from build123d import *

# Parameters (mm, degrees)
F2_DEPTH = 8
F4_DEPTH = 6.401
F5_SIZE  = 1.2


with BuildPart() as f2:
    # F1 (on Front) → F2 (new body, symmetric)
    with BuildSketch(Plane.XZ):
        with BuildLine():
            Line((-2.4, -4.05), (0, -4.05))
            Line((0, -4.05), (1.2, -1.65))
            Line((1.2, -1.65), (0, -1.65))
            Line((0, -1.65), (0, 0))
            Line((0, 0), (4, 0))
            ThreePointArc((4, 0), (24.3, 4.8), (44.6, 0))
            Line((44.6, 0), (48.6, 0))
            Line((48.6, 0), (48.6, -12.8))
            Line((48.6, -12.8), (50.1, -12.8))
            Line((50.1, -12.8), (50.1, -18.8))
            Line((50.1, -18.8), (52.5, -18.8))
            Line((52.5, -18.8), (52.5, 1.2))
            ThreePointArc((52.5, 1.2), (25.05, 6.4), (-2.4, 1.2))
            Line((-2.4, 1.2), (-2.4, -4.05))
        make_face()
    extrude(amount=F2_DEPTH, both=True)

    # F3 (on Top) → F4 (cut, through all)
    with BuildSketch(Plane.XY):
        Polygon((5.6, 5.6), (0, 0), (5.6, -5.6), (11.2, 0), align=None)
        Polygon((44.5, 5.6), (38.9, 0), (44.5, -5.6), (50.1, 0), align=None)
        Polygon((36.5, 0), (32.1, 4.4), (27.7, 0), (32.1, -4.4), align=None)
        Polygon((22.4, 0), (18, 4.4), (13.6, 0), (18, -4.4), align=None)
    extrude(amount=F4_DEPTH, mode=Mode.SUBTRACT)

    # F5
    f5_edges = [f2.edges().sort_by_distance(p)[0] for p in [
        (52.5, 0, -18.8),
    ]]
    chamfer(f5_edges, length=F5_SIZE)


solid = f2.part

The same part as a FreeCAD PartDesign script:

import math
import FreeCAD as App
import Part
import Sketcher
Q = App.Units.Quantity


def edges_at(feature, points):
    """Names of the edges that pass closest to the given points."""
    edges = feature.Shape.Edges
    near = lambda p: min(range(len(edges)), key=lambda i: edges[i].distToShape(Part.Vertex(*p))[0])
    return sorted({f"Edge{near(p) + 1}" for p in points})

doc = App.newDocument("Part")
params = doc.addObject("Spreadsheet::Sheet", "Params")
for row, (alias, value) in enumerate([
    ("sketch1_width", "4 mm"),
    ("sketch1_height", "6 mm"),
    ("sketch1_height2", "20 mm"),
    ("sketch1_width2", "2.4 mm"),
    ("sketch1_width3", "1.2 mm"),
    ("pad1_length", "16 mm"),
    ("chamfer_size", "1.2 mm"),
], start=1):
    params.set(f"A{row}", alias)
    params.set(f"B{row}", "=" + value)
    params.setAlias(f"B{row}", alias)

body = doc.addObject("PartDesign::Body", "Body")

# Sketch on XZ plane
sketch1 = body.newObject("Sketcher::SketchObject", "Sketch")
sketch1.AttachmentSupport = (doc.getObject("XZ_Plane"), [""])
sketch1.MapMode = "FlatFace"
sketch1.addGeometry([
    Part.LineSegment(App.Vector(-2.4, -4, 0), App.Vector(0, -4, 0)),  # 0
    Part.LineSegment(App.Vector(0, -4, 0), App.Vector(1.2, -1.6, 0)),  # 1
    Part.LineSegment(App.Vector(1.2, -1.6, 0), App.Vector(0, -1.6, 0)),  # 2
    Part.LineSegment(App.Vector(0, -1.6, 0), App.Vector(0, 0, 0)),  # 3
    Part.LineSegment(App.Vector(0, 0, 0), App.Vector(4, 0, 0)),  # 4
    Part.ArcOfCircle(Part.Circle(App.Vector(24.3, -40.5, 0), App.Vector(0, 0, 1), 45.3), math.radians(63), math.radians(117)),  # 5
    Part.LineSegment(App.Vector(44.6, 0, 0), App.Vector(48.6, 0, 0)),  # 6
    Part.LineSegment(App.Vector(48.6, 0, 0), App.Vector(48.6, -12.8, 0)),  # 7
    Part.LineSegment(App.Vector(48.6, -12.8, 0), App.Vector(50.1, -12.8, 0)),  # 8
    Part.LineSegment(App.Vector(50.1, -12.8, 0), App.Vector(50.1, -18.8, 0)),  # 9
    Part.LineSegment(App.Vector(50.1, -18.8, 0), App.Vector(52.5, -18.8, 0)),  # 10
    Part.LineSegment(App.Vector(52.5, -18.8, 0), App.Vector(52.5, 1.2, 0)),  # 11
    Part.ArcOfCircle(Part.Circle(App.Vector(25.1, -68.7, 0), App.Vector(0, 0, 1), 75.1), math.radians(69), math.radians(111)),  # 12
    Part.LineSegment(App.Vector(-2.4, 1.2, 0), App.Vector(-2.4, -4, 0)),  # 13
], False)
sketch1.addConstraint([
    Sketcher.Constraint("Coincident", 0, 2, 1, 1),
    Sketcher.Constraint("Coincident", 1, 2, 2, 1),
    Sketcher.Constraint("Coincident", 2, 2, 3, 1),
    Sketcher.Constraint("Coincident", 3, 2, 4, 1),
    Sketcher.Constraint("Coincident", 4, 2, 5, 2),
    Sketcher.Constraint("Coincident", 5, 1, 6, 1),
    Sketcher.Constraint("Coincident", 6, 2, 7, 1),
    Sketcher.Constraint("Coincident", 7, 2, 8, 1),
    Sketcher.Constraint("Coincident", 8, 2, 9, 1),
    Sketcher.Constraint("Coincident", 9, 2, 10, 1),
    Sketcher.Constraint("Coincident", 10, 2, 11, 1),
    Sketcher.Constraint("Coincident", 11, 2, 12, 1),
    Sketcher.Constraint("Coincident", 12, 2, 13, 1),
    Sketcher.Constraint("Coincident", 13, 2, 0, 1),
    Sketcher.Constraint("Horizontal", 0),
    Sketcher.Constraint("Horizontal", 2),
    Sketcher.Constraint("Vertical", 3),
    Sketcher.Constraint("Horizontal", 4),
    Sketcher.Constraint("Horizontal", 6),
    Sketcher.Constraint("Vertical", 7),
    Sketcher.Constraint("Horizontal", 8),
    Sketcher.Constraint("Vertical", 9),
    Sketcher.Constraint("Horizontal", 10),
    Sketcher.Constraint("Vertical", 11),
    Sketcher.Constraint("Vertical", 13),
    Sketcher.Constraint("Coincident", 3, 2, -1, 1),
    Sketcher.Constraint("PointOnObject", 0, 2, -2),
    Sketcher.Constraint("PointOnObject", 5, 1, -1),
    Sketcher.Constraint("Horizontal", 11, 2, 12, 2),
    Sketcher.Constraint("Equal", 4, 6),
    Sketcher.Constraint("Equal", 0, 10),
    Sketcher.Constraint("DistanceX", 4, 1, 4, 2, Q("4 mm")),
    Sketcher.Constraint("DistanceY", 9, 2, 9, 1, Q("6 mm")),
    Sketcher.Constraint("DistanceY", 11, 1, 11, 2, Q("20 mm")),
    Sketcher.Constraint("DistanceX", 0, 1, 0, 2, Q("2.4 mm")),
    Sketcher.Constraint("DistanceX", 2, 2, 2, 1, Q("1.2 mm")),
    Sketcher.Constraint("DistanceX", 8, 1, 8, 2, Q("1.5 mm")),
    Sketcher.Constraint("DistanceY", 7, 2, 7, 1, Q("12.8 mm")),
    Sketcher.Constraint("DistanceY", 3, 1, 3, 2, Q("1.65 mm")),
    Sketcher.Constraint("DistanceY", 13, 2, 13, 1, Q("5.25 mm")),
    Sketcher.Constraint("DistanceX", -1, 1, 5, 3, Q("24.3 mm")),
    Sketcher.Constraint("Radius", 5, Q("45.326042 mm")),
    Sketcher.Constraint("Radius", 12, Q("75.052163 mm")),
])
sketch1.setExpression("Constraints[31]", "Params.sketch1_width")
sketch1.setExpression("Constraints[32]", "Params.sketch1_height")
sketch1.setExpression("Constraints[33]", "Params.sketch1_height2")
sketch1.setExpression("Constraints[34]", "Params.sketch1_width2")
sketch1.setExpression("Constraints[35]", "Params.sketch1_width3")
pad1 = body.newObject("PartDesign::Pad", "Pad")
pad1.Profile = sketch1
pad1.setExpression("Length", "Params.pad1_length")
pad1.Midplane = True

# Sketch on XY plane
sketch2 = body.newObject("Sketcher::SketchObject", "Sketch001")
sketch2.AttachmentSupport = (doc.getObject("XY_Plane"), [""])
sketch2.MapMode = "FlatFace"
sketch2.addGeometry([
    Part.LineSegment(App.Vector(6, 6, 0), App.Vector(0, 0, 0)),  # 0
    Part.LineSegment(App.Vector(0, 0, 0), App.Vector(6, -6, 0)),  # 1
    Part.LineSegment(App.Vector(6, -6, 0), App.Vector(11, 0, 0)),  # 2
    Part.LineSegment(App.Vector(11, 0, 0), App.Vector(6, 6, 0)),  # 3
    Part.LineSegment(App.Vector(44, 6, 0), App.Vector(39, 0, 0)),  # 4
    Part.LineSegment(App.Vector(39, 0, 0), App.Vector(44, -6, 0)),  # 5
    Part.LineSegment(App.Vector(44, -6, 0), App.Vector(50, 0, 0)),  # 6
    Part.LineSegment(App.Vector(50, 0, 0), App.Vector(44, 6, 0)),  # 7
    Part.LineSegment(App.Vector(36, 0, 0), App.Vector(32, 4, 0)),  # 8
    Part.LineSegment(App.Vector(32, 4, 0), App.Vector(28, 0, 0)),  # 9
    Part.LineSegment(App.Vector(28, 0, 0), App.Vector(32, -4, 0)),  # 10
    Part.LineSegment(App.Vector(32, -4, 0), App.Vector(36, 0, 0)),  # 11
    Part.LineSegment(App.Vector(22, 0, 0), App.Vector(18, 4, 0)),  # 12
    Part.LineSegment(App.Vector(18, 4, 0), App.Vector(14, 0, 0)),  # 13
    Part.LineSegment(App.Vector(14, 0, 0), App.Vector(18, -4, 0)),  # 14
    Part.LineSegment(App.Vector(18, -4, 0), App.Vector(22, 0, 0)),  # 15
], False)
sketch2.addConstraint([
    Sketcher.Constraint("Coincident", 0, 2, 1, 1),
    Sketcher.Constraint("Coincident", 1, 2, 2, 1),
    Sketcher.Constraint("Coincident", 2, 2, 3, 1),
    Sketcher.Constraint("Coincident", 3, 2, 0, 1),
    Sketcher.Constraint("Coincident", 4, 2, 5, 1),
    Sketcher.Constraint("Coincident", 5, 2, 6, 1),
    Sketcher.Constraint("Coincident", 6, 2, 7, 1),
    Sketcher.Constraint("Coincident", 7, 2, 4, 1),
    Sketcher.Constraint("Coincident", 8, 2, 9, 1),
    Sketcher.Constraint("Coincident", 9, 2, 10, 1),
    Sketcher.Constraint("Coincident", 10, 2, 11, 1),
    Sketcher.Constraint("Coincident", 11, 2, 8, 1),
    Sketcher.Constraint("Coincident", 12, 2, 13, 1),
    Sketcher.Constraint("Coincident", 13, 2, 14, 1),
    Sketcher.Constraint("Coincident", 14, 2, 15, 1),
    Sketcher.Constraint("Coincident", 15, 2, 12, 1),
    Sketcher.Constraint("Coincident", 0, 2, -1, 1),
    Sketcher.Constraint("Symmetric", 1, 2, 3, 2, -1),
    Sketcher.Constraint("Symmetric", 5, 2, 7, 2, -1),
    Sketcher.Constraint("Symmetric", 8, 2, 10, 2, -1),
    Sketcher.Constraint("Symmetric", 12, 2, 14, 2, -1),
    Sketcher.Constraint("PointOnObject", 2, 2, -1),
    Sketcher.Constraint("PointOnObject", 4, 2, -1),
    Sketcher.Constraint("PointOnObject", 6, 2, -1),
    Sketcher.Constraint("PointOnObject", 9, 2, -1),
    Sketcher.Constraint("PointOnObject", 11, 2, -1),
    Sketcher.Constraint("PointOnObject", 13, 2, -1),
    Sketcher.Constraint("PointOnObject", 15, 2, -1),
    Sketcher.Constraint("Perpendicular", 0, 1),
    Sketcher.Constraint("Perpendicular", 1, 2),
    Sketcher.Constraint("Perpendicular", 3, 4),
    Sketcher.Constraint("Perpendicular", 5, 6),
    Sketcher.Constraint("Parallel", 7, 8),
    Sketcher.Constraint("Perpendicular", 8, 9),
    Sketcher.Constraint("Perpendicular", 11, 12),
    Sketcher.Constraint("Perpendicular", 12, 13),
    Sketcher.Constraint("Horizontal", 1, 2, 5, 2),
    Sketcher.Constraint("Horizontal", 8, 2, 12, 2),
    Sketcher.Constraint("DistanceX", -1, 1, 12, 2, Q("18 mm")),
    Sketcher.Constraint("DistanceY", 5, 2, 8, 2, Q("10 mm")),
    Sketcher.Constraint("DistanceX", 8, 2, 6, 2, Q("18 mm")),
    Sketcher.Constraint("DistanceX", -1, 1, 1, 2, Q("5.6 mm")),
    Sketcher.Constraint("DistanceX", -1, 1, 4, 2, Q("38.9 mm")),
])
pocket1 = body.newObject("PartDesign::Pocket", "Pocket")
pocket1.Profile = sketch2
pocket1.Type = "ThroughAll"
pocket1.Reversed = True
doc.recompute()

chamfer = body.newObject("PartDesign::Chamfer", "Chamfer")
chamfer.Base = (pocket1, edges_at(pocket1, [(52.5, 0, -18.8)]))
chamfer.setExpression("Size", "Params.chamfer_size")

doc.recompute()
